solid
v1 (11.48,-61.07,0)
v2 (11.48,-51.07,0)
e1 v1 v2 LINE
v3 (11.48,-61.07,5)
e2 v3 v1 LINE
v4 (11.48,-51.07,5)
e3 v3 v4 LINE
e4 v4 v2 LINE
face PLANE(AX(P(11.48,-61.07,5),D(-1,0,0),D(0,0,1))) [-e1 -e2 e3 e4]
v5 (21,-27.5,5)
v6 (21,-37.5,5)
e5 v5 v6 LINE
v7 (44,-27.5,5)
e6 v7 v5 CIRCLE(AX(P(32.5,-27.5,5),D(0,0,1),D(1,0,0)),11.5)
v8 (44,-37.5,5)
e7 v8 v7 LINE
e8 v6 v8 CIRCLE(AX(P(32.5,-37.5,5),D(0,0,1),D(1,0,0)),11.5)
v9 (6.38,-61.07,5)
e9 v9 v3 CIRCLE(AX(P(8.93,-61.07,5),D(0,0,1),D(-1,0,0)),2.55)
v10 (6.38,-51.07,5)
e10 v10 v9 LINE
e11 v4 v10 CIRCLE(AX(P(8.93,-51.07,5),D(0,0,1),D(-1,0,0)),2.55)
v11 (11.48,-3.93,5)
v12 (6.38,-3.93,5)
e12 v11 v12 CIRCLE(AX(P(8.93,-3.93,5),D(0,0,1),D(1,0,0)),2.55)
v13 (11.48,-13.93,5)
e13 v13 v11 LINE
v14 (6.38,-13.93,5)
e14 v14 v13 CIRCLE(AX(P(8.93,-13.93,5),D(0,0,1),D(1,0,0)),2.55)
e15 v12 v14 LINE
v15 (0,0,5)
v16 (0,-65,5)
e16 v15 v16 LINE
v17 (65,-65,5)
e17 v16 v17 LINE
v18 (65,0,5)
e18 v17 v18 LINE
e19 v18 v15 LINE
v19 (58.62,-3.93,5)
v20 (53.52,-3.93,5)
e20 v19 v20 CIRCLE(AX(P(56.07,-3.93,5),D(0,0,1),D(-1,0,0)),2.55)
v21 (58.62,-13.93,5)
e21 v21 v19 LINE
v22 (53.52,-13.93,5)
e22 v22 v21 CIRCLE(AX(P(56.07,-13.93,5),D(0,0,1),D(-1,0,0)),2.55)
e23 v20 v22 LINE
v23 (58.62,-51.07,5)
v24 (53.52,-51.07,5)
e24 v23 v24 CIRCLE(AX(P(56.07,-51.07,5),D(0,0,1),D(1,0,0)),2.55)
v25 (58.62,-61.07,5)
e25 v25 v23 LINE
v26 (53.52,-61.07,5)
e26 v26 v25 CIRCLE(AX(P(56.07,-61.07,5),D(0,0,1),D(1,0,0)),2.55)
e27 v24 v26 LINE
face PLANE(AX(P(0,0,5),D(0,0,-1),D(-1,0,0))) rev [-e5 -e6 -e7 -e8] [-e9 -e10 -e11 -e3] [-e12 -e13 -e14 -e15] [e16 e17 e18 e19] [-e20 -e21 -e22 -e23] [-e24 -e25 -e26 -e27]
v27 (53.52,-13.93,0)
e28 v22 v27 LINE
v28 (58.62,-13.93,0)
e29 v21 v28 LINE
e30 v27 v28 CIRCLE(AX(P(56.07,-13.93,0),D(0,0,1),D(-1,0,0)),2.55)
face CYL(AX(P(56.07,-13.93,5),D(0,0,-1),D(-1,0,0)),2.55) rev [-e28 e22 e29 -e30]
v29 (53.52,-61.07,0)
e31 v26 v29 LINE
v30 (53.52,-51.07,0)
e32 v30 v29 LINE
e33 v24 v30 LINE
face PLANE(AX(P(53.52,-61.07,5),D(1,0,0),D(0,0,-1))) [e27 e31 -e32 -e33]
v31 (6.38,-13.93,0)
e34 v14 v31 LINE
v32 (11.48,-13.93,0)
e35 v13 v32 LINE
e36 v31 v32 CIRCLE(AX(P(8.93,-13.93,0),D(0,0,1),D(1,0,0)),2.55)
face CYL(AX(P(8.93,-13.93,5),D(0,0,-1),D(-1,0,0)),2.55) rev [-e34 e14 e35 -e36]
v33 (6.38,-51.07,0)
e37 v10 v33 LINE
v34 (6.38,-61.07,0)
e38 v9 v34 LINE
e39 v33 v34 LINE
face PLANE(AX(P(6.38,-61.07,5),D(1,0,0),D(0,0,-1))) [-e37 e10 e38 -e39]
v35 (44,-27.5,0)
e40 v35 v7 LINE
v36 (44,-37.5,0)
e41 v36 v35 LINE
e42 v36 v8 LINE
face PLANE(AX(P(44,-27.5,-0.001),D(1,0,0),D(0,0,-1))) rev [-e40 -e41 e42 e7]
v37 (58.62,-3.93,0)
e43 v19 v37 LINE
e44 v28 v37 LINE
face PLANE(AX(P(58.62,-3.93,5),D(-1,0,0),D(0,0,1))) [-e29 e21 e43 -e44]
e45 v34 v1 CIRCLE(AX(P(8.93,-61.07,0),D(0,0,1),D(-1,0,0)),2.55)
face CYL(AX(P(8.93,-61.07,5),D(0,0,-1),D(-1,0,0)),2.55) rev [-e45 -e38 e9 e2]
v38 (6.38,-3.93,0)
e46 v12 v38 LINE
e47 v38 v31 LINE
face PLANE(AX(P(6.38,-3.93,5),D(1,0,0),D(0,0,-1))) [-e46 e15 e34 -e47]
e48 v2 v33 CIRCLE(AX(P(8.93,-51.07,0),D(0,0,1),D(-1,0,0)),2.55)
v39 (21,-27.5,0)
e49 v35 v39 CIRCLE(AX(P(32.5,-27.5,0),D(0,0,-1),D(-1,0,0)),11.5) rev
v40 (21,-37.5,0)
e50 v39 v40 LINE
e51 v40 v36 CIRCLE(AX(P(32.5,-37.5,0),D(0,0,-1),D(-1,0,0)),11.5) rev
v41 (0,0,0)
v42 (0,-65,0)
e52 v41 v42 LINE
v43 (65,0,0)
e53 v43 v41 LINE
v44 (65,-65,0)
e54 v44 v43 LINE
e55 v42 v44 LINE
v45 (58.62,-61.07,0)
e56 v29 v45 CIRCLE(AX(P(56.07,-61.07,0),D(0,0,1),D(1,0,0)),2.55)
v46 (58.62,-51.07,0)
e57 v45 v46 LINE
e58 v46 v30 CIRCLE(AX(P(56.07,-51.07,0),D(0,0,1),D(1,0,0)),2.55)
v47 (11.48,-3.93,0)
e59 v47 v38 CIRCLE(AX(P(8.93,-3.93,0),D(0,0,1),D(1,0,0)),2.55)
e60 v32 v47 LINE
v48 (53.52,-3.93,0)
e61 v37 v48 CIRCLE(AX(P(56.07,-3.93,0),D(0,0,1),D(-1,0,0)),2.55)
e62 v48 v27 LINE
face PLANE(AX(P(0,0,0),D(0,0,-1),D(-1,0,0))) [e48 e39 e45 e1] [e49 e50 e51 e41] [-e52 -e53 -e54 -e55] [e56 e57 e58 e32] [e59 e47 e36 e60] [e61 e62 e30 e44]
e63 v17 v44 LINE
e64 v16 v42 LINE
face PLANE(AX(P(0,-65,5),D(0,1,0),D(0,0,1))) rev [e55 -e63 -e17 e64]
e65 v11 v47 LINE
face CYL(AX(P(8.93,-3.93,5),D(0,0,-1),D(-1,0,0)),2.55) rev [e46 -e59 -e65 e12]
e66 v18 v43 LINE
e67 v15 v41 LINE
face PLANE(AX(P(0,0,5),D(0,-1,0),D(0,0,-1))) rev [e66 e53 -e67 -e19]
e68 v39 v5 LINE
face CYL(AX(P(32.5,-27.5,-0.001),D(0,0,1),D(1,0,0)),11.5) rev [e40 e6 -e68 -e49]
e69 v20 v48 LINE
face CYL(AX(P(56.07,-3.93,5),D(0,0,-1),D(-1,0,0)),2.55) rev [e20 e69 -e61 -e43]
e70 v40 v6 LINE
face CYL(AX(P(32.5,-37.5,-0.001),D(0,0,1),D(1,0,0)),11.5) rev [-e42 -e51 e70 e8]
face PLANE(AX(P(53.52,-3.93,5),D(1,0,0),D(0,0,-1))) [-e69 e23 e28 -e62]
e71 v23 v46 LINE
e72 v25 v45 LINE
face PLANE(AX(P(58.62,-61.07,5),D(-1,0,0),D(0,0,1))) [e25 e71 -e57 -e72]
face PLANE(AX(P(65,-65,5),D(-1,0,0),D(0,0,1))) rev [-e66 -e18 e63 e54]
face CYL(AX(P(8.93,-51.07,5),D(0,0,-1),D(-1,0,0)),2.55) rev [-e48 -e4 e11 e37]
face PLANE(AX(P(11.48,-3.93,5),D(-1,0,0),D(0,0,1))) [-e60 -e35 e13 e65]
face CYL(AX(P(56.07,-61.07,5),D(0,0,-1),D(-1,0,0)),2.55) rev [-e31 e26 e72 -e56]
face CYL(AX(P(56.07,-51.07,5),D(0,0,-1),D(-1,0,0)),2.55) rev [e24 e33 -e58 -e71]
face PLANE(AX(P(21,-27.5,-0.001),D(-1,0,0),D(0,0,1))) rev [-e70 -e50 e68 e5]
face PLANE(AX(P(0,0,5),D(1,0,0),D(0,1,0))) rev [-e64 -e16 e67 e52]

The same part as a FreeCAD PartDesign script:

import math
import FreeCAD as App
import Part
import Sketcher
from FreeCAD import Vector
Q = App.Units.Quantity


def add_polygon(sketch, points):
    """Adds a closed chain of lines whose ends are joined by coincident constraints."""
    first, n = sketch.GeometryCount, len(points)
    for a, b in zip(points, points[1:] + points[:1]):
        sketch.addGeometry(Part.LineSegment(App.Vector(*a, 0), App.Vector(*b, 0)), False)
    for i in range(n):
        sketch.addConstraint(Sketcher.Constraint("Coincident", first + i, 2, first + (i + 1) % n, 1))

doc = App.newDocument("Part")
params = doc.addObject("Spreadsheet::Sheet", "Params")
for row, (alias, value) in enumerate([
    ("sketch1_width", "65 mm"),
    ("sketch1_height", "10 mm"),
    ("sketch1_radius", "2.55 mm"),
    ("pad1_length", "5 mm"),
    ("sketch2_radius", "11.5 mm"),
    ("sketch2_height", "10 mm"),
], start=1):
    params.set(f"A{row}", alias)
    params.set(f"B{row}", "=" + value)
    params.setAlias(f"B{row}", alias)

body = doc.addObject("PartDesign::Body", "Body")

sketch1 = body.newObject("Sketcher::SketchObject", "Sketch")
sketch1.AttachmentSupport = (doc.getObject("XY_Plane"), [""])
sketch1.MapMode = "FlatFace"
add_polygon(sketch1, [(0, 0), (0, -65), (65, -65), (65, 0)])
sketch1.addGeometry(Part.LineSegment(Vector(11.48, -51.07, 0), Vector(11.48, -61.07, 0)), False)
sketch1.addGeometry(Part.ArcOfCircle(Part.Circle(Vector(8.93, -61.07, 0), Vector(0, 0, 1), 2.55), math.radians(180), math.radians(360)), False)
sketch1.addGeometry(Part.LineSegment(Vector(6.38, -61.07, 0), Vector(6.38, -51.07, 0)), False)
sketch1.addGeometry(Part.ArcOfCircle(Part.Circle(Vector(8.93, -51.07, 0), Vector(0, 0, 1), 2.55), math.radians(0), math.radians(180)), False)
sketch1.addGeometry(Part.ArcOfCircle(Part.Circle(Vector(56.07, -61.07, 0), Vector(0, 0, 1), 2.55), math.radians(180), math.radians(360)), False)
sketch1.addGeometry(Part.LineSegment(Vector(53.52, -61.07, 0), Vector(53.52, -51.07, 0)), False)
sketch1.addGeometry(Part.ArcOfCircle(Part.Circle(Vector(56.07, -51.07, 0), Vector(0, 0, 1), 2.55), math.radians(0), math.radians(180)), False)
sketch1.addGeometry(Part.LineSegment(Vector(58.62, -51.07, 0), Vector(58.62, -61.07, 0)), False)
sketch1.addGeometry(Part.ArcOfCircle(Part.Circle(Vector(8.93, -3.93, 0), Vector(0, 0, 1), 2.55), math.radians(0), math.radians(180)), False)
sketch1.addGeometry(Part.LineSegment(Vector(11.48, -3.93, 0), Vector(11.48, -13.93, 0)), False)
sketch1.addGeometry(Part.ArcOfCircle(Part.Circle(Vector(8.93, -13.93, 0), Vector(0, 0, 1), 2.55), math.radians(180), math.radians(360)), False)
sketch1.addGeometry(Part.LineSegment(Vector(6.38, -13.93, 0), Vector(6.38, -3.93, 0)), False)
sketch1.addGeometry(Part.LineSegment(Vector(53.52, -13.93, 0), Vector(53.52, -3.93, 0)), False)
sketch1.addGeometry(Part.ArcOfCircle(Part.Circle(Vector(56.07, -3.93, 0), Vector(0, 0, 1), 2.55), math.radians(0), math.radians(180)), False)
sketch1.addGeometry(Part.LineSegment(Vector(58.62, -3.93, 0), Vector(58.62, -13.93, 0)), False)
sketch1.addGeometry(Part.ArcOfCircle(Part.Circle(Vector(56.07, -13.93, 0), Vector(0, 0, 1), 2.55), math.radians(180), math.radians(360)), False)
sketch1.addConstraint([
    Sketcher.Constraint("Tangent", 4, 2, 5, 2),
    Sketcher.Constraint("Tangent", 5, 1, 6, 1),
    Sketcher.Constraint("Tangent", 6, 2, 7, 2),
    Sketcher.Constraint("Tangent", 7, 1, 4, 1),
    Sketcher.Constraint("Tangent", 8, 1, 9, 1),
    Sketcher.Constraint("Tangent", 9, 2, 10, 2),
    Sketcher.Constraint("Tangent", 10, 1, 11, 1),
    Sketcher.Constraint("Tangent", 11, 2, 8, 2),
    Sketcher.Constraint("Tangent", 12, 1, 13, 1),
    Sketcher.Constraint("Tangent", 13, 2, 14, 2),
    Sketcher.Constraint("Tangent", 14, 1, 15, 1),
    Sketcher.Constraint("Tangent", 15, 2, 12, 2),
    Sketcher.Constraint("Tangent", 16, 2, 17, 2),
    Sketcher.Constraint("Tangent", 17, 1, 18, 1),
    Sketcher.Constraint("Tangent", 18, 2, 19, 2),
    Sketcher.Constraint("Tangent", 19, 1, 16, 1),
    Sketcher.Constraint("Vertical", 0),
    Sketcher.Constraint("Horizontal", 1),
    Sketcher.Constraint("Vertical", 2),
    Sketcher.Constraint("Horizontal", 3),
    Sketcher.Constraint("Vertical", 4),
    Sketcher.Constraint("Vertical", 6),
    Sketcher.Constraint("Vertical", 9),
    Sketcher.Constraint("Vertical", 11),
    Sketcher.Constraint("Vertical", 13),
    Sketcher.Constraint("Vertical", 15),
    Sketcher.Constraint("Vertical", 16),
    Sketcher.Constraint("Vertical", 18),
    Sketcher.Constraint("Coincident", 3, 2, -1, 1),
    Sketcher.Constraint("Equal", 7, 8),
    Sketcher.Constraint("Equal", 10, 12),
    Sketcher.Constraint("Equal", 14, 17),
    Sketcher.Constraint("Horizontal", 5, 3, 8, 3),
    Sketcher.Constraint("Horizontal", 7, 3, 10, 3),
    Sketcher.Constraint("Horizontal", 12, 3, 17, 3),
    Sketcher.Constraint("Horizontal", 14, 3, 19, 3),
    Sketcher.Constraint("Vertical", 7, 3, 12, 3),
    Sketcher.Constraint("Vertical", 10, 3, 17, 3),
    Sketcher.Constraint("Equal", 3, 0),
    Sketcher.Constraint("Equal", 11, 13),
    Sketcher.Constraint("DistanceX", 1, 1, 1, 2, Q("65 mm")),
    Sketcher.Constraint("DistanceY", 4, 2, 4, 1, Q("10 mm")),
    Sketcher.Constraint("Radius", 5, Q("2.55 mm")),
    Sketcher.Constraint("DistanceX", -1, 1, 5, 3, Q("8.93 mm")),
    Sketcher.Constraint("DistanceY", 5, 3, -1, 1, Q("61.07 mm")),
    Sketcher.Constraint("DistanceX", -1, 1, 8, 3, Q("56.07 mm")),
    Sketcher.Constraint("DistanceY", 12, 3, -1, 1, Q("3.93 mm")),
])
sketch1.setExpression("Constraints[44]", "Params.sketch1_width")
sketch1.setExpression("Constraints[45]", "Params.sketch1_height")
sketch1.setExpression("Constraints[46]", "Params.sketch1_radius")
pad1 = body.newObject("PartDesign::Pad", "Pad")
pad1.Profile = sketch1
pad1.setExpression("Length", "Params.pad1_length")

sketch2 = body.newObject("Sketcher::SketchObject", "Sketch001")
sketch2.AttachmentSupport = (doc.getObject("XY_Plane"), [""])
sketch2.MapMode = "FlatFace"
sketch2.AttachmentOffset = App.Placement(Vector(0, 0, 5), App.Rotation())
sketch2.addGeometry([
    Part.LineSegment(Vector(44, -37.5, 0), Vector(44, -27.5, 0)),
    Part.ArcOfCircle(Part.Circle(Vector(32.5, -27.5, 0), Vector(0, 0, 1), 11.5), math.radians(0), math.radians(180)),
    Part.LineSegment(Vector(21, -27.5, 0), Vector(21, -37.5, 0)),
    Part.ArcOfCircle(Part.Circle(Vector(32.5, -37.5, 0), Vector(0, 0, 1), 11.5), math.radians(180), math.radians(360)),
], False)
sketch2.addConstraint([
    Sketcher.Constraint("Tangent", 0, 2, 1, 1),
    Sketcher.Constraint("Tangent", 1, 2, 2, 1),
    Sketcher.Constraint("Tangent", 2, 2, 3, 1),
    Sketcher.Constraint("Tangent", 3, 2, 0, 1),
    Sketcher.Constraint("Vertical", 0),
    Sketcher.Constraint("Vertical", 2),
    Sketcher.Constraint("Radius", 1, Q("11.5 mm")),
    Sketcher.Constraint("DistanceY", 0, 1, 0, 2, Q("10 mm")),
    Sketcher.Constraint("DistanceX", -1, 1, 0, 2, Q("44 mm")),
    Sketcher.Constraint("DistanceY", 1, 3, -1, 1, Q("27.5 mm")),
])
sketch2.setExpression("Constraints[6]", "Params.sketch2_radius")
sketch2.setExpression("Constraints[7]", "Params.sketch2_height")
pocket1 = body.newObject("PartDesign::Pocket", "Pocket")
pocket1.Profile = sketch2
pocket1.Type = "UpToFirst"

doc.recompute()
